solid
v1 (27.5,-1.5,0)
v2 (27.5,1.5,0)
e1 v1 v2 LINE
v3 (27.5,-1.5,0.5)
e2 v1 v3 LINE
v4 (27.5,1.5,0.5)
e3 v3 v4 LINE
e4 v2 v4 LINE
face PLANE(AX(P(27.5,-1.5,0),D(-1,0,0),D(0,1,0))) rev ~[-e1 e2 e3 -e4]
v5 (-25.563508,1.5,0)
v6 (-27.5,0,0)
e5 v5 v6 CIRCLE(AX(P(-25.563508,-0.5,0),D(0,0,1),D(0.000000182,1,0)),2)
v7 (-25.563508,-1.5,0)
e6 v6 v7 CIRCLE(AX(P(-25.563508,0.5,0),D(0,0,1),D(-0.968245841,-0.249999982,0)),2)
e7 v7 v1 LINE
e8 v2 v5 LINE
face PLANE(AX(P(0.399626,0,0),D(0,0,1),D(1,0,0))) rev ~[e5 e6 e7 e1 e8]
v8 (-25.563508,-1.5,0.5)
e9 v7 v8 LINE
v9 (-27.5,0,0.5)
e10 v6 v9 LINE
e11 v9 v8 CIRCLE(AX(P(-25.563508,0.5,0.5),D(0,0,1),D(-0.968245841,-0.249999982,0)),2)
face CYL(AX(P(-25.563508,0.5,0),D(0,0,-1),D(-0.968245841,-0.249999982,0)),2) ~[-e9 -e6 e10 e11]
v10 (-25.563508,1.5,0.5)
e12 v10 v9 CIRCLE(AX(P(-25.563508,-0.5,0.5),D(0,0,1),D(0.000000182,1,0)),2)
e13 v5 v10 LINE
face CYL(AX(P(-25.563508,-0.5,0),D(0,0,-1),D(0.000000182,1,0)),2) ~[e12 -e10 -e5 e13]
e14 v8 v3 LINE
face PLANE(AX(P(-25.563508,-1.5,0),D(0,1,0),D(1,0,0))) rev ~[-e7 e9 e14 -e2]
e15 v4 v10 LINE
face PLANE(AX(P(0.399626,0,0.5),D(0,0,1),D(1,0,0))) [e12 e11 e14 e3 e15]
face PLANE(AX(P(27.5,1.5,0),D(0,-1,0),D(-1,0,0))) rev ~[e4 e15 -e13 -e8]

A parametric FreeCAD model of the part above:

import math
import FreeCAD as App
import Part
import Sketcher

V = App.Vector
Q = App.Units.Quantity

doc = App.newDocument("Part")
body = doc.addObject("PartDesign::Body", "Body")

# Sketch on XY plane
sketch1 = body.newObject("Sketcher::SketchObject", "Sketch")
sketch1.AttachmentSupport = (doc.getObject("XY_Plane"), [""])
sketch1.MapMode = "FlatFace"
sketch1.addGeometry(Part.LineSegment(V(27.5, -1.5, 0), V(27.5, 1.5, 0)), False)
sketch1.addGeometry(Part.LineSegment(V(27.5, 1.5, 0), V(-25.6, 1.5, 0)), False)
sketch1.addGeometry(Part.ArcOfCircle(Part.Circle(V(-25.6, -0.5, 0), V(0, 0, 1), 2), math.radians(90), math.radians(166)), False)
sketch1.addGeometry(Part.ArcOfCircle(Part.Circle(V(-25.6, 0.5, 0), V(0, 0, 1), 2), math.radians(-166), math.radians(-90)), False)
sketch1.addGeometry(Part.LineSegment(V(-25.6, -1.5, 0), V(27.5, -1.5, 0)), False)
sketch1.addConstraint(Sketcher.Constraint("Coincident", 0, 2, 1, 1))
sketch1.addConstraint(Sketcher.Constraint("Tangent", 1, 2, 2, 1))
sketch1.addConstraint(Sketcher.Constraint("Coincident", 2, 2, 3, 1))
sketch1.addConstraint(Sketcher.Constraint("Tangent", 3, 2, 4, 1))
sketch1.addConstraint(Sketcher.Constraint("Coincident", 4, 2, 0, 1))
sketch1.addConstraint(Sketcher.Constraint("Vertical", 0))
sketch1.addConstraint(Sketcher.Constraint("Horizontal", 1))
sketch1.addConstraint(Sketcher.Constraint("Horizontal", 4))
sketch1.addConstraint(Sketcher.Constraint("Equal", 2, 3))
sketch1.addConstraint(Sketcher.Constraint("Symmetric", 2, 3, 3, 3, -1))
sketch1.addConstraint(Sketcher.Constraint("Radius", 2, Q("2 mm")))
sketch1.addConstraint(Sketcher.Constraint("DistanceY", 0, 1, 0, 2, Q("3 mm")))
sketch1.addConstraint(Sketcher.Constraint("DistanceX", 2, 2, 0, 2, Q("55 mm")))
sketch1.addConstraint(Sketcher.Constraint("DistanceX", -1, 1, 0, 2, Q("27.5 mm")))
pad1 = body.newObject("PartDesign::Pad", "Pad")
pad1.Profile = sketch1
pad1.Length = 0.5

doc.recompute()
